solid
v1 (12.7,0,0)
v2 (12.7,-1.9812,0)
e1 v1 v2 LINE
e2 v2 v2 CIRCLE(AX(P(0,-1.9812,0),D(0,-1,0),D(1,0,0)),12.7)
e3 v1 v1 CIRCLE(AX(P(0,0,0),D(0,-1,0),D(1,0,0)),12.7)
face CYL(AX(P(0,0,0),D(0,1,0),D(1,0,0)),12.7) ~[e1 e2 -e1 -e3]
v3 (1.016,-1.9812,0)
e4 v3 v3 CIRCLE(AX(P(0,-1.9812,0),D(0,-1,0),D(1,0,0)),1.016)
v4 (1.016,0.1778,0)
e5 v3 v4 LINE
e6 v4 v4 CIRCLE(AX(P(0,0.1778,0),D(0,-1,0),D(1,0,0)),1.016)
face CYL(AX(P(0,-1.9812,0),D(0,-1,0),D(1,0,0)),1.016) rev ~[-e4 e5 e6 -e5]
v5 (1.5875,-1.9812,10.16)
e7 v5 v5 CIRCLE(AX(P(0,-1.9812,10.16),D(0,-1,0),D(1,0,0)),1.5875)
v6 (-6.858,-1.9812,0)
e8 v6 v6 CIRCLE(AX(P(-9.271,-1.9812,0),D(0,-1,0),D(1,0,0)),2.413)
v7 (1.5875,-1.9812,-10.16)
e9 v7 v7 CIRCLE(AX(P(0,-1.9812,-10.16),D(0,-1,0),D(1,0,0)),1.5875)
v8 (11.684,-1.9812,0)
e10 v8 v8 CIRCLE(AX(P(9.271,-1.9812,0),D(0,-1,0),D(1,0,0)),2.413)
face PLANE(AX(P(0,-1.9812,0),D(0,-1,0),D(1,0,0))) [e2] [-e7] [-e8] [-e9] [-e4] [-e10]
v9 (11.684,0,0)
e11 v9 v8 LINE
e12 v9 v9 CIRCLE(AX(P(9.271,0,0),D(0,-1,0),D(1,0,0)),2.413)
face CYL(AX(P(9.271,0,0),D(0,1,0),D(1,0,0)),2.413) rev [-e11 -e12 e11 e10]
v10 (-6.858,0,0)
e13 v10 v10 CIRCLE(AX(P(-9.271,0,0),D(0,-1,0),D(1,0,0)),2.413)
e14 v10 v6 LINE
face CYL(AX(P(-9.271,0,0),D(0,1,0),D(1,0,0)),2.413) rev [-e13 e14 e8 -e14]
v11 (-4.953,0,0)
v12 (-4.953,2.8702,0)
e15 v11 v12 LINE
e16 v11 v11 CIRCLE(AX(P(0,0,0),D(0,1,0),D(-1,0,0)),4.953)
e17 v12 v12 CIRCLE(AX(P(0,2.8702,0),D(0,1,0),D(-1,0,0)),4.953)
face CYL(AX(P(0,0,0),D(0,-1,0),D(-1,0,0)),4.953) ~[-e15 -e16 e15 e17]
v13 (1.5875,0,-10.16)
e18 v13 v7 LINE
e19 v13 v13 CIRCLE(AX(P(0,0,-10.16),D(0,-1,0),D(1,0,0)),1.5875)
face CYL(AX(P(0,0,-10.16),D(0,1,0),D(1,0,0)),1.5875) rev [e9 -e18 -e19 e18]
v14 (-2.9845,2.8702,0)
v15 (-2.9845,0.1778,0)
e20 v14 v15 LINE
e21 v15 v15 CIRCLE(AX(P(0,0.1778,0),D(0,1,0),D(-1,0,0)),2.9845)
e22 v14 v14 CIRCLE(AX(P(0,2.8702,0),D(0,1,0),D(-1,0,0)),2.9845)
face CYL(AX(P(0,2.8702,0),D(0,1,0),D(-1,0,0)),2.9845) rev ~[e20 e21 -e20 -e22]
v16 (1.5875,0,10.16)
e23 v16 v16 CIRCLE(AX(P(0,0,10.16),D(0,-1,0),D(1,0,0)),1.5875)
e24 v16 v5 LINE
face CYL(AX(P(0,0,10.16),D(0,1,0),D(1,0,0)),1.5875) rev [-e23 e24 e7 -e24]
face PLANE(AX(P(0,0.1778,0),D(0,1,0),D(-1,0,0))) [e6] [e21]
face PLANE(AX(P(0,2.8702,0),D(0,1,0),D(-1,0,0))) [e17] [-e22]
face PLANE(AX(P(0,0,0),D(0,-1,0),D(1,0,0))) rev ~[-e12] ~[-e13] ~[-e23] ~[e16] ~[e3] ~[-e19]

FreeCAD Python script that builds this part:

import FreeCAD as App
import Part
import Sketcher
Q = App.Units.Quantity

doc = App.newDocument("Part")
body = doc.addObject("PartDesign::Body", "Body")

# Sketch on XZ plane
sketch1 = body.newObject("Sketcher::SketchObject", "Sketch")
sketch1.AttachmentSupport = (doc.getObject("XZ_Plane"), [""])
sketch1.MapMode = "FlatFace"
sketch1.addGeometry([
    Part.Circle(App.Vector(0, 0, 0), App.Vector(0, 0, 1), 12.7),  # 0
    Part.Circle(App.Vector(-9.271, 0, 0), App.Vector(0, 0, 1), 2.413),  # 1
    Part.Circle(App.Vector(0, -10.16, 0), App.Vector(0, 0, 1), 1.5875),  # 2
    Part.Circle(App.Vector(9.271, 0, 0), App.Vector(0, 0, 1), 2.413),  # 3
    Part.Circle(App.Vector(0, 10.16, 0), App.Vector(0, 0, 1), 1.5875),  # 4
], False)
sketch1.addConstraint([
    Sketcher.Constraint("Coincident", 0, 3, -1, 1),
    Sketcher.Constraint("Equal", 1, 3),
    Sketcher.Constraint("Equal", 2, 4),
    Sketcher.Constraint("Symmetric", 1, 3, 3, 3, -1, 1),
    Sketcher.Constraint("Symmetric", 2, 3, 4, 3, -1, 1),
    Sketcher.Constraint("PointOnObject", 1, 3, -1),
    Sketcher.Constraint("PointOnObject", 2, 3, -2),
    Sketcher.Constraint("Diameter", 0, Q("1 in")),
    Sketcher.Constraint("Diameter", 1, Q("0.19 in")),
    Sketcher.Constraint("Diameter", 2, Q("0.125 in")),
    Sketcher.Constraint("DistanceY", 2, 3, -1, 1, Q("0.4 in")),
    Sketcher.Constraint("DistanceX", 1, 3, 3, 3, Q("0.73 in")),
])
pad1 = body.newObject("PartDesign::Pad", "Pad")
pad1.Profile = sketch1
pad1.Length = Q("0.078 in")

# Sketch on XZ plane
sketch2 = body.newObject("Sketcher::SketchObject", "Sketch001")
sketch2.AttachmentSupport = (doc.getObject("XZ_Plane"), [""])
sketch2.MapMode = "FlatFace"
sketch2.addGeometry(Part.Circle(App.Vector(0, 0, 0), App.Vector(0, 0, 1), 4.953), False)
sketch2.addConstraint([
    Sketcher.Constraint("Coincident", 0, 3, -1, 1),
    Sketcher.Constraint("Diameter", 0, Q("0.39 in")),
])
pad2 = body.newObject("PartDesign::Pad", "Pad001")
pad2.Profile = sketch2
pad2.Length = Q("0.113 in")
pad2.Reversed = True

# Sketch on XZ plane
sketch3 = body.newObject("Sketcher::SketchObject", "Sketch002")
sketch3.AttachmentSupport = (doc.getObject("XZ_Plane"), [""])
sketch3.MapMode = "FlatFace"
sketch3.AttachmentOffset = App.Placement(App.Vector(0, 0, -0.113 * 25.4), App.Rotation())
sketch3.addGeometry(Part.Circle(App.Vector(0, 0, 0), App.Vector(0, 0, 1), 2.9845), False)
sketch3.addConstraint([
    Sketcher.Constraint("Coincident", 0, 3, -1, 1),
    Sketcher.Constraint("Diameter", 0, Q("0.235 in")),
])
pocket1 = body.newObject("PartDesign::Pocket", "Pocket")
pocket1.Profile = sketch3
pocket1.Length = Q("0.106 in")
pocket1.Reversed = True

# Sketch on XZ plane
sketch4 = body.newObject("Sketcher::SketchObject", "Sketch003")
sketch4.AttachmentSupport = (doc.getObject("XZ_Plane"), [""])
sketch4.MapMode = "FlatFace"
sketch4.AttachmentOffset = App.Placement(App.Vector(0, 0, 0.078 * 25.4), App.Rotation())
sketch4.addGeometry(Part.Circle(App.Vector(0, 0, 0), App.Vector(0, 0, 1), 1.016), False)
sketch4.addConstraint([
    Sketcher.Constraint("Coincident", 0, 3, -1, 1),
    Sketcher.Constraint("Diameter", 0, Q("0.08 in")),
])
pocket2 = body.newObject("PartDesign::Pocket", "Pocket001")
pocket2.Profile = sketch4
pocket2.Type = "ThroughAll"

doc.recompute()
